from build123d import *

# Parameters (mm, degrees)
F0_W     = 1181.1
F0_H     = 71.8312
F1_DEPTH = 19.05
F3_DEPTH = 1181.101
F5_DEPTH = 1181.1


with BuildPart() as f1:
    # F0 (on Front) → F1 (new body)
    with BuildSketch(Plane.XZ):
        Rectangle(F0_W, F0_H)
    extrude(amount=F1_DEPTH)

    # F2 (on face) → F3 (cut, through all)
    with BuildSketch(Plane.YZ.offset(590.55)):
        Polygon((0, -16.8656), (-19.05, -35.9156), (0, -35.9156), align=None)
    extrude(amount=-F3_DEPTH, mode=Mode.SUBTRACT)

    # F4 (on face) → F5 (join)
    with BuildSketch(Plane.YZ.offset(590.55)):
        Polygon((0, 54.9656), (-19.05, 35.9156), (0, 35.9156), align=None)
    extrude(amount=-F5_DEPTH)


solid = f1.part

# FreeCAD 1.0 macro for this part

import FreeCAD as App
import Part
import Sketcher
Q = App.Units.Quantity

doc = App.newDocument("Part")
body = doc.addObject("PartDesign::Body", "Body")

# Sketch on XZ plane
sketch1 = body.newObject("Sketcher::SketchObject", "Sketch")
sketch1.AttachmentSupport = (doc.getObject("XZ_Plane"), [""])
sketch1.MapMode = "FlatFace"
sketch1.addGeometry([
    Part.LineSegment(App.Vector(-591, 36, 0), App.Vector(-591, -36, 0)),
    Part.LineSegment(App.Vector(-591, -36, 0), App.Vector(591, -36, 0)),
    Part.LineSegment(App.Vector(591, -36, 0), App.Vector(591, 36, 0)),
    Part.LineSegment(App.Vector(591, 36, 0), App.Vector(-591, 36, 0)),
], False)
sketch1.addConstraint([
    Sketcher.Constraint("Coincident", 0, 2, 1, 1),
    Sketcher.Constraint("Coincident", 1, 2, 2, 1),
    Sketcher.Constraint("Coincident", 2, 2, 3, 1),
    Sketcher.Constraint("Coincident", 3, 2, 0, 1),
    Sketcher.Constraint("Vertical", 0),
    Sketcher.Constraint("Horizontal", 1),
    Sketcher.Constraint("Vertical", 2),
    Sketcher.Constraint("Horizontal", 3),
    Sketcher.Constraint("Symmetric", 0, 2, 2, 2, -1, 1),
    Sketcher.Constraint("DistanceX", 1, 1, 1, 2, Q("46.5 in")),
    Sketcher.Constraint("DistanceY", 0, 2, 0, 1, Q("2.828 in")),
])
pad1 = body.newObject("PartDesign::Pad", "Pad")
pad1.Profile = sketch1
pad1.Length = Q("0.75 in")

# Sketch on YZ plane
sketch2 = body.newObject("Sketcher::SketchObject", "Sketch001")
sketch2.AttachmentSupport = (doc.getObject("YZ_Plane"), [""])
sketch2.MapMode = "FlatFace"
sketch2.AttachmentOffset = App.Placement(App.Vector(0, 0, 23.25 * 25.4), App.Rotation())
sketch2.addGeometry([
    Part.LineSegment(App.Vector(0, -17, 0), App.Vector(-19, -36, 0)),
    Part.LineSegment(App.Vector(-19, -36, 0), App.Vector(0, -36, 0)),
    Part.LineSegment(App.Vector(0, -36, 0), App.Vector(0, -17, 0)),
], False)
sketch2.addConstraint([
    Sketcher.Constraint("Coincident", 0, 2, 1, 1),
    Sketcher.Constraint("Coincident", 1, 2, 2, 1),
    Sketcher.Constraint("Coincident", 2, 2, 0, 1),
    Sketcher.Constraint("Horizontal", 1),
    Sketcher.Constraint("Vertical", 2),
    Sketcher.Constraint("PointOnObject", 1, 2, -2),
    Sketcher.Constraint("Equal", 1, 2),
    Sketcher.Constraint("DistanceX", 1, 1, 1, 2, Q("0.75 in")),
    Sketcher.Constraint("DistanceY", 0, 2, -1, 1, Q("1.414 in")),
])
pocket1 = body.newObject("PartDesign::Pocket", "Pocket")
pocket1.Profile = sketch2
pocket1.Type = "ThroughAll"

# Sketch on YZ plane
sketch3 = body.newObject("Sketcher::SketchObject", "Sketch002")
sketch3.AttachmentSupport = (doc.getObject("YZ_Plane"), [""])
sketch3.MapMode = "FlatFace"
sketch3.AttachmentOffset = App.Placement(App.Vector(0, 0, 23.25 * 25.4), App.Rotation())
sketch3.addGeometry([
    Part.LineSegment(App.Vector(0, 55, 0), App.Vector(-19, 36, 0)),
    Part.LineSegment(App.Vector(-19, 36, 0), App.Vector(0, 36, 0)),
    Part.LineSegment(App.Vector(0, 36, 0), App.Vector(0, 55, 0)),
], False)
sketch3.addConstraint([
    Sketcher.Constraint("Coincident", 0, 2, 1, 1),
    Sketcher.Constraint("Coincident", 1, 2, 2, 1),
    Sketcher.Constraint("Coincident", 2, 2, 0, 1),
    Sketcher.Constraint("Horizontal", 1),
    Sketcher.Constraint("Vertical", 2),
    Sketcher.Constraint("PointOnObject", 1, 2, -2),
    Sketcher.Constraint("Equal", 1, 2),
    Sketcher.Constraint("DistanceX", 1, 1, 1, 2, Q("0.75 in")),
    Sketcher.Constraint("DistanceY", -1, 1, 0, 2, Q("1.414 in")),
])
pad2 = body.newObject("PartDesign::Pad", "Pad001")
pad2.Profile = sketch3
pad2.Length = Q("46.5 in")
pad2.Reversed = True

doc.recompute()
